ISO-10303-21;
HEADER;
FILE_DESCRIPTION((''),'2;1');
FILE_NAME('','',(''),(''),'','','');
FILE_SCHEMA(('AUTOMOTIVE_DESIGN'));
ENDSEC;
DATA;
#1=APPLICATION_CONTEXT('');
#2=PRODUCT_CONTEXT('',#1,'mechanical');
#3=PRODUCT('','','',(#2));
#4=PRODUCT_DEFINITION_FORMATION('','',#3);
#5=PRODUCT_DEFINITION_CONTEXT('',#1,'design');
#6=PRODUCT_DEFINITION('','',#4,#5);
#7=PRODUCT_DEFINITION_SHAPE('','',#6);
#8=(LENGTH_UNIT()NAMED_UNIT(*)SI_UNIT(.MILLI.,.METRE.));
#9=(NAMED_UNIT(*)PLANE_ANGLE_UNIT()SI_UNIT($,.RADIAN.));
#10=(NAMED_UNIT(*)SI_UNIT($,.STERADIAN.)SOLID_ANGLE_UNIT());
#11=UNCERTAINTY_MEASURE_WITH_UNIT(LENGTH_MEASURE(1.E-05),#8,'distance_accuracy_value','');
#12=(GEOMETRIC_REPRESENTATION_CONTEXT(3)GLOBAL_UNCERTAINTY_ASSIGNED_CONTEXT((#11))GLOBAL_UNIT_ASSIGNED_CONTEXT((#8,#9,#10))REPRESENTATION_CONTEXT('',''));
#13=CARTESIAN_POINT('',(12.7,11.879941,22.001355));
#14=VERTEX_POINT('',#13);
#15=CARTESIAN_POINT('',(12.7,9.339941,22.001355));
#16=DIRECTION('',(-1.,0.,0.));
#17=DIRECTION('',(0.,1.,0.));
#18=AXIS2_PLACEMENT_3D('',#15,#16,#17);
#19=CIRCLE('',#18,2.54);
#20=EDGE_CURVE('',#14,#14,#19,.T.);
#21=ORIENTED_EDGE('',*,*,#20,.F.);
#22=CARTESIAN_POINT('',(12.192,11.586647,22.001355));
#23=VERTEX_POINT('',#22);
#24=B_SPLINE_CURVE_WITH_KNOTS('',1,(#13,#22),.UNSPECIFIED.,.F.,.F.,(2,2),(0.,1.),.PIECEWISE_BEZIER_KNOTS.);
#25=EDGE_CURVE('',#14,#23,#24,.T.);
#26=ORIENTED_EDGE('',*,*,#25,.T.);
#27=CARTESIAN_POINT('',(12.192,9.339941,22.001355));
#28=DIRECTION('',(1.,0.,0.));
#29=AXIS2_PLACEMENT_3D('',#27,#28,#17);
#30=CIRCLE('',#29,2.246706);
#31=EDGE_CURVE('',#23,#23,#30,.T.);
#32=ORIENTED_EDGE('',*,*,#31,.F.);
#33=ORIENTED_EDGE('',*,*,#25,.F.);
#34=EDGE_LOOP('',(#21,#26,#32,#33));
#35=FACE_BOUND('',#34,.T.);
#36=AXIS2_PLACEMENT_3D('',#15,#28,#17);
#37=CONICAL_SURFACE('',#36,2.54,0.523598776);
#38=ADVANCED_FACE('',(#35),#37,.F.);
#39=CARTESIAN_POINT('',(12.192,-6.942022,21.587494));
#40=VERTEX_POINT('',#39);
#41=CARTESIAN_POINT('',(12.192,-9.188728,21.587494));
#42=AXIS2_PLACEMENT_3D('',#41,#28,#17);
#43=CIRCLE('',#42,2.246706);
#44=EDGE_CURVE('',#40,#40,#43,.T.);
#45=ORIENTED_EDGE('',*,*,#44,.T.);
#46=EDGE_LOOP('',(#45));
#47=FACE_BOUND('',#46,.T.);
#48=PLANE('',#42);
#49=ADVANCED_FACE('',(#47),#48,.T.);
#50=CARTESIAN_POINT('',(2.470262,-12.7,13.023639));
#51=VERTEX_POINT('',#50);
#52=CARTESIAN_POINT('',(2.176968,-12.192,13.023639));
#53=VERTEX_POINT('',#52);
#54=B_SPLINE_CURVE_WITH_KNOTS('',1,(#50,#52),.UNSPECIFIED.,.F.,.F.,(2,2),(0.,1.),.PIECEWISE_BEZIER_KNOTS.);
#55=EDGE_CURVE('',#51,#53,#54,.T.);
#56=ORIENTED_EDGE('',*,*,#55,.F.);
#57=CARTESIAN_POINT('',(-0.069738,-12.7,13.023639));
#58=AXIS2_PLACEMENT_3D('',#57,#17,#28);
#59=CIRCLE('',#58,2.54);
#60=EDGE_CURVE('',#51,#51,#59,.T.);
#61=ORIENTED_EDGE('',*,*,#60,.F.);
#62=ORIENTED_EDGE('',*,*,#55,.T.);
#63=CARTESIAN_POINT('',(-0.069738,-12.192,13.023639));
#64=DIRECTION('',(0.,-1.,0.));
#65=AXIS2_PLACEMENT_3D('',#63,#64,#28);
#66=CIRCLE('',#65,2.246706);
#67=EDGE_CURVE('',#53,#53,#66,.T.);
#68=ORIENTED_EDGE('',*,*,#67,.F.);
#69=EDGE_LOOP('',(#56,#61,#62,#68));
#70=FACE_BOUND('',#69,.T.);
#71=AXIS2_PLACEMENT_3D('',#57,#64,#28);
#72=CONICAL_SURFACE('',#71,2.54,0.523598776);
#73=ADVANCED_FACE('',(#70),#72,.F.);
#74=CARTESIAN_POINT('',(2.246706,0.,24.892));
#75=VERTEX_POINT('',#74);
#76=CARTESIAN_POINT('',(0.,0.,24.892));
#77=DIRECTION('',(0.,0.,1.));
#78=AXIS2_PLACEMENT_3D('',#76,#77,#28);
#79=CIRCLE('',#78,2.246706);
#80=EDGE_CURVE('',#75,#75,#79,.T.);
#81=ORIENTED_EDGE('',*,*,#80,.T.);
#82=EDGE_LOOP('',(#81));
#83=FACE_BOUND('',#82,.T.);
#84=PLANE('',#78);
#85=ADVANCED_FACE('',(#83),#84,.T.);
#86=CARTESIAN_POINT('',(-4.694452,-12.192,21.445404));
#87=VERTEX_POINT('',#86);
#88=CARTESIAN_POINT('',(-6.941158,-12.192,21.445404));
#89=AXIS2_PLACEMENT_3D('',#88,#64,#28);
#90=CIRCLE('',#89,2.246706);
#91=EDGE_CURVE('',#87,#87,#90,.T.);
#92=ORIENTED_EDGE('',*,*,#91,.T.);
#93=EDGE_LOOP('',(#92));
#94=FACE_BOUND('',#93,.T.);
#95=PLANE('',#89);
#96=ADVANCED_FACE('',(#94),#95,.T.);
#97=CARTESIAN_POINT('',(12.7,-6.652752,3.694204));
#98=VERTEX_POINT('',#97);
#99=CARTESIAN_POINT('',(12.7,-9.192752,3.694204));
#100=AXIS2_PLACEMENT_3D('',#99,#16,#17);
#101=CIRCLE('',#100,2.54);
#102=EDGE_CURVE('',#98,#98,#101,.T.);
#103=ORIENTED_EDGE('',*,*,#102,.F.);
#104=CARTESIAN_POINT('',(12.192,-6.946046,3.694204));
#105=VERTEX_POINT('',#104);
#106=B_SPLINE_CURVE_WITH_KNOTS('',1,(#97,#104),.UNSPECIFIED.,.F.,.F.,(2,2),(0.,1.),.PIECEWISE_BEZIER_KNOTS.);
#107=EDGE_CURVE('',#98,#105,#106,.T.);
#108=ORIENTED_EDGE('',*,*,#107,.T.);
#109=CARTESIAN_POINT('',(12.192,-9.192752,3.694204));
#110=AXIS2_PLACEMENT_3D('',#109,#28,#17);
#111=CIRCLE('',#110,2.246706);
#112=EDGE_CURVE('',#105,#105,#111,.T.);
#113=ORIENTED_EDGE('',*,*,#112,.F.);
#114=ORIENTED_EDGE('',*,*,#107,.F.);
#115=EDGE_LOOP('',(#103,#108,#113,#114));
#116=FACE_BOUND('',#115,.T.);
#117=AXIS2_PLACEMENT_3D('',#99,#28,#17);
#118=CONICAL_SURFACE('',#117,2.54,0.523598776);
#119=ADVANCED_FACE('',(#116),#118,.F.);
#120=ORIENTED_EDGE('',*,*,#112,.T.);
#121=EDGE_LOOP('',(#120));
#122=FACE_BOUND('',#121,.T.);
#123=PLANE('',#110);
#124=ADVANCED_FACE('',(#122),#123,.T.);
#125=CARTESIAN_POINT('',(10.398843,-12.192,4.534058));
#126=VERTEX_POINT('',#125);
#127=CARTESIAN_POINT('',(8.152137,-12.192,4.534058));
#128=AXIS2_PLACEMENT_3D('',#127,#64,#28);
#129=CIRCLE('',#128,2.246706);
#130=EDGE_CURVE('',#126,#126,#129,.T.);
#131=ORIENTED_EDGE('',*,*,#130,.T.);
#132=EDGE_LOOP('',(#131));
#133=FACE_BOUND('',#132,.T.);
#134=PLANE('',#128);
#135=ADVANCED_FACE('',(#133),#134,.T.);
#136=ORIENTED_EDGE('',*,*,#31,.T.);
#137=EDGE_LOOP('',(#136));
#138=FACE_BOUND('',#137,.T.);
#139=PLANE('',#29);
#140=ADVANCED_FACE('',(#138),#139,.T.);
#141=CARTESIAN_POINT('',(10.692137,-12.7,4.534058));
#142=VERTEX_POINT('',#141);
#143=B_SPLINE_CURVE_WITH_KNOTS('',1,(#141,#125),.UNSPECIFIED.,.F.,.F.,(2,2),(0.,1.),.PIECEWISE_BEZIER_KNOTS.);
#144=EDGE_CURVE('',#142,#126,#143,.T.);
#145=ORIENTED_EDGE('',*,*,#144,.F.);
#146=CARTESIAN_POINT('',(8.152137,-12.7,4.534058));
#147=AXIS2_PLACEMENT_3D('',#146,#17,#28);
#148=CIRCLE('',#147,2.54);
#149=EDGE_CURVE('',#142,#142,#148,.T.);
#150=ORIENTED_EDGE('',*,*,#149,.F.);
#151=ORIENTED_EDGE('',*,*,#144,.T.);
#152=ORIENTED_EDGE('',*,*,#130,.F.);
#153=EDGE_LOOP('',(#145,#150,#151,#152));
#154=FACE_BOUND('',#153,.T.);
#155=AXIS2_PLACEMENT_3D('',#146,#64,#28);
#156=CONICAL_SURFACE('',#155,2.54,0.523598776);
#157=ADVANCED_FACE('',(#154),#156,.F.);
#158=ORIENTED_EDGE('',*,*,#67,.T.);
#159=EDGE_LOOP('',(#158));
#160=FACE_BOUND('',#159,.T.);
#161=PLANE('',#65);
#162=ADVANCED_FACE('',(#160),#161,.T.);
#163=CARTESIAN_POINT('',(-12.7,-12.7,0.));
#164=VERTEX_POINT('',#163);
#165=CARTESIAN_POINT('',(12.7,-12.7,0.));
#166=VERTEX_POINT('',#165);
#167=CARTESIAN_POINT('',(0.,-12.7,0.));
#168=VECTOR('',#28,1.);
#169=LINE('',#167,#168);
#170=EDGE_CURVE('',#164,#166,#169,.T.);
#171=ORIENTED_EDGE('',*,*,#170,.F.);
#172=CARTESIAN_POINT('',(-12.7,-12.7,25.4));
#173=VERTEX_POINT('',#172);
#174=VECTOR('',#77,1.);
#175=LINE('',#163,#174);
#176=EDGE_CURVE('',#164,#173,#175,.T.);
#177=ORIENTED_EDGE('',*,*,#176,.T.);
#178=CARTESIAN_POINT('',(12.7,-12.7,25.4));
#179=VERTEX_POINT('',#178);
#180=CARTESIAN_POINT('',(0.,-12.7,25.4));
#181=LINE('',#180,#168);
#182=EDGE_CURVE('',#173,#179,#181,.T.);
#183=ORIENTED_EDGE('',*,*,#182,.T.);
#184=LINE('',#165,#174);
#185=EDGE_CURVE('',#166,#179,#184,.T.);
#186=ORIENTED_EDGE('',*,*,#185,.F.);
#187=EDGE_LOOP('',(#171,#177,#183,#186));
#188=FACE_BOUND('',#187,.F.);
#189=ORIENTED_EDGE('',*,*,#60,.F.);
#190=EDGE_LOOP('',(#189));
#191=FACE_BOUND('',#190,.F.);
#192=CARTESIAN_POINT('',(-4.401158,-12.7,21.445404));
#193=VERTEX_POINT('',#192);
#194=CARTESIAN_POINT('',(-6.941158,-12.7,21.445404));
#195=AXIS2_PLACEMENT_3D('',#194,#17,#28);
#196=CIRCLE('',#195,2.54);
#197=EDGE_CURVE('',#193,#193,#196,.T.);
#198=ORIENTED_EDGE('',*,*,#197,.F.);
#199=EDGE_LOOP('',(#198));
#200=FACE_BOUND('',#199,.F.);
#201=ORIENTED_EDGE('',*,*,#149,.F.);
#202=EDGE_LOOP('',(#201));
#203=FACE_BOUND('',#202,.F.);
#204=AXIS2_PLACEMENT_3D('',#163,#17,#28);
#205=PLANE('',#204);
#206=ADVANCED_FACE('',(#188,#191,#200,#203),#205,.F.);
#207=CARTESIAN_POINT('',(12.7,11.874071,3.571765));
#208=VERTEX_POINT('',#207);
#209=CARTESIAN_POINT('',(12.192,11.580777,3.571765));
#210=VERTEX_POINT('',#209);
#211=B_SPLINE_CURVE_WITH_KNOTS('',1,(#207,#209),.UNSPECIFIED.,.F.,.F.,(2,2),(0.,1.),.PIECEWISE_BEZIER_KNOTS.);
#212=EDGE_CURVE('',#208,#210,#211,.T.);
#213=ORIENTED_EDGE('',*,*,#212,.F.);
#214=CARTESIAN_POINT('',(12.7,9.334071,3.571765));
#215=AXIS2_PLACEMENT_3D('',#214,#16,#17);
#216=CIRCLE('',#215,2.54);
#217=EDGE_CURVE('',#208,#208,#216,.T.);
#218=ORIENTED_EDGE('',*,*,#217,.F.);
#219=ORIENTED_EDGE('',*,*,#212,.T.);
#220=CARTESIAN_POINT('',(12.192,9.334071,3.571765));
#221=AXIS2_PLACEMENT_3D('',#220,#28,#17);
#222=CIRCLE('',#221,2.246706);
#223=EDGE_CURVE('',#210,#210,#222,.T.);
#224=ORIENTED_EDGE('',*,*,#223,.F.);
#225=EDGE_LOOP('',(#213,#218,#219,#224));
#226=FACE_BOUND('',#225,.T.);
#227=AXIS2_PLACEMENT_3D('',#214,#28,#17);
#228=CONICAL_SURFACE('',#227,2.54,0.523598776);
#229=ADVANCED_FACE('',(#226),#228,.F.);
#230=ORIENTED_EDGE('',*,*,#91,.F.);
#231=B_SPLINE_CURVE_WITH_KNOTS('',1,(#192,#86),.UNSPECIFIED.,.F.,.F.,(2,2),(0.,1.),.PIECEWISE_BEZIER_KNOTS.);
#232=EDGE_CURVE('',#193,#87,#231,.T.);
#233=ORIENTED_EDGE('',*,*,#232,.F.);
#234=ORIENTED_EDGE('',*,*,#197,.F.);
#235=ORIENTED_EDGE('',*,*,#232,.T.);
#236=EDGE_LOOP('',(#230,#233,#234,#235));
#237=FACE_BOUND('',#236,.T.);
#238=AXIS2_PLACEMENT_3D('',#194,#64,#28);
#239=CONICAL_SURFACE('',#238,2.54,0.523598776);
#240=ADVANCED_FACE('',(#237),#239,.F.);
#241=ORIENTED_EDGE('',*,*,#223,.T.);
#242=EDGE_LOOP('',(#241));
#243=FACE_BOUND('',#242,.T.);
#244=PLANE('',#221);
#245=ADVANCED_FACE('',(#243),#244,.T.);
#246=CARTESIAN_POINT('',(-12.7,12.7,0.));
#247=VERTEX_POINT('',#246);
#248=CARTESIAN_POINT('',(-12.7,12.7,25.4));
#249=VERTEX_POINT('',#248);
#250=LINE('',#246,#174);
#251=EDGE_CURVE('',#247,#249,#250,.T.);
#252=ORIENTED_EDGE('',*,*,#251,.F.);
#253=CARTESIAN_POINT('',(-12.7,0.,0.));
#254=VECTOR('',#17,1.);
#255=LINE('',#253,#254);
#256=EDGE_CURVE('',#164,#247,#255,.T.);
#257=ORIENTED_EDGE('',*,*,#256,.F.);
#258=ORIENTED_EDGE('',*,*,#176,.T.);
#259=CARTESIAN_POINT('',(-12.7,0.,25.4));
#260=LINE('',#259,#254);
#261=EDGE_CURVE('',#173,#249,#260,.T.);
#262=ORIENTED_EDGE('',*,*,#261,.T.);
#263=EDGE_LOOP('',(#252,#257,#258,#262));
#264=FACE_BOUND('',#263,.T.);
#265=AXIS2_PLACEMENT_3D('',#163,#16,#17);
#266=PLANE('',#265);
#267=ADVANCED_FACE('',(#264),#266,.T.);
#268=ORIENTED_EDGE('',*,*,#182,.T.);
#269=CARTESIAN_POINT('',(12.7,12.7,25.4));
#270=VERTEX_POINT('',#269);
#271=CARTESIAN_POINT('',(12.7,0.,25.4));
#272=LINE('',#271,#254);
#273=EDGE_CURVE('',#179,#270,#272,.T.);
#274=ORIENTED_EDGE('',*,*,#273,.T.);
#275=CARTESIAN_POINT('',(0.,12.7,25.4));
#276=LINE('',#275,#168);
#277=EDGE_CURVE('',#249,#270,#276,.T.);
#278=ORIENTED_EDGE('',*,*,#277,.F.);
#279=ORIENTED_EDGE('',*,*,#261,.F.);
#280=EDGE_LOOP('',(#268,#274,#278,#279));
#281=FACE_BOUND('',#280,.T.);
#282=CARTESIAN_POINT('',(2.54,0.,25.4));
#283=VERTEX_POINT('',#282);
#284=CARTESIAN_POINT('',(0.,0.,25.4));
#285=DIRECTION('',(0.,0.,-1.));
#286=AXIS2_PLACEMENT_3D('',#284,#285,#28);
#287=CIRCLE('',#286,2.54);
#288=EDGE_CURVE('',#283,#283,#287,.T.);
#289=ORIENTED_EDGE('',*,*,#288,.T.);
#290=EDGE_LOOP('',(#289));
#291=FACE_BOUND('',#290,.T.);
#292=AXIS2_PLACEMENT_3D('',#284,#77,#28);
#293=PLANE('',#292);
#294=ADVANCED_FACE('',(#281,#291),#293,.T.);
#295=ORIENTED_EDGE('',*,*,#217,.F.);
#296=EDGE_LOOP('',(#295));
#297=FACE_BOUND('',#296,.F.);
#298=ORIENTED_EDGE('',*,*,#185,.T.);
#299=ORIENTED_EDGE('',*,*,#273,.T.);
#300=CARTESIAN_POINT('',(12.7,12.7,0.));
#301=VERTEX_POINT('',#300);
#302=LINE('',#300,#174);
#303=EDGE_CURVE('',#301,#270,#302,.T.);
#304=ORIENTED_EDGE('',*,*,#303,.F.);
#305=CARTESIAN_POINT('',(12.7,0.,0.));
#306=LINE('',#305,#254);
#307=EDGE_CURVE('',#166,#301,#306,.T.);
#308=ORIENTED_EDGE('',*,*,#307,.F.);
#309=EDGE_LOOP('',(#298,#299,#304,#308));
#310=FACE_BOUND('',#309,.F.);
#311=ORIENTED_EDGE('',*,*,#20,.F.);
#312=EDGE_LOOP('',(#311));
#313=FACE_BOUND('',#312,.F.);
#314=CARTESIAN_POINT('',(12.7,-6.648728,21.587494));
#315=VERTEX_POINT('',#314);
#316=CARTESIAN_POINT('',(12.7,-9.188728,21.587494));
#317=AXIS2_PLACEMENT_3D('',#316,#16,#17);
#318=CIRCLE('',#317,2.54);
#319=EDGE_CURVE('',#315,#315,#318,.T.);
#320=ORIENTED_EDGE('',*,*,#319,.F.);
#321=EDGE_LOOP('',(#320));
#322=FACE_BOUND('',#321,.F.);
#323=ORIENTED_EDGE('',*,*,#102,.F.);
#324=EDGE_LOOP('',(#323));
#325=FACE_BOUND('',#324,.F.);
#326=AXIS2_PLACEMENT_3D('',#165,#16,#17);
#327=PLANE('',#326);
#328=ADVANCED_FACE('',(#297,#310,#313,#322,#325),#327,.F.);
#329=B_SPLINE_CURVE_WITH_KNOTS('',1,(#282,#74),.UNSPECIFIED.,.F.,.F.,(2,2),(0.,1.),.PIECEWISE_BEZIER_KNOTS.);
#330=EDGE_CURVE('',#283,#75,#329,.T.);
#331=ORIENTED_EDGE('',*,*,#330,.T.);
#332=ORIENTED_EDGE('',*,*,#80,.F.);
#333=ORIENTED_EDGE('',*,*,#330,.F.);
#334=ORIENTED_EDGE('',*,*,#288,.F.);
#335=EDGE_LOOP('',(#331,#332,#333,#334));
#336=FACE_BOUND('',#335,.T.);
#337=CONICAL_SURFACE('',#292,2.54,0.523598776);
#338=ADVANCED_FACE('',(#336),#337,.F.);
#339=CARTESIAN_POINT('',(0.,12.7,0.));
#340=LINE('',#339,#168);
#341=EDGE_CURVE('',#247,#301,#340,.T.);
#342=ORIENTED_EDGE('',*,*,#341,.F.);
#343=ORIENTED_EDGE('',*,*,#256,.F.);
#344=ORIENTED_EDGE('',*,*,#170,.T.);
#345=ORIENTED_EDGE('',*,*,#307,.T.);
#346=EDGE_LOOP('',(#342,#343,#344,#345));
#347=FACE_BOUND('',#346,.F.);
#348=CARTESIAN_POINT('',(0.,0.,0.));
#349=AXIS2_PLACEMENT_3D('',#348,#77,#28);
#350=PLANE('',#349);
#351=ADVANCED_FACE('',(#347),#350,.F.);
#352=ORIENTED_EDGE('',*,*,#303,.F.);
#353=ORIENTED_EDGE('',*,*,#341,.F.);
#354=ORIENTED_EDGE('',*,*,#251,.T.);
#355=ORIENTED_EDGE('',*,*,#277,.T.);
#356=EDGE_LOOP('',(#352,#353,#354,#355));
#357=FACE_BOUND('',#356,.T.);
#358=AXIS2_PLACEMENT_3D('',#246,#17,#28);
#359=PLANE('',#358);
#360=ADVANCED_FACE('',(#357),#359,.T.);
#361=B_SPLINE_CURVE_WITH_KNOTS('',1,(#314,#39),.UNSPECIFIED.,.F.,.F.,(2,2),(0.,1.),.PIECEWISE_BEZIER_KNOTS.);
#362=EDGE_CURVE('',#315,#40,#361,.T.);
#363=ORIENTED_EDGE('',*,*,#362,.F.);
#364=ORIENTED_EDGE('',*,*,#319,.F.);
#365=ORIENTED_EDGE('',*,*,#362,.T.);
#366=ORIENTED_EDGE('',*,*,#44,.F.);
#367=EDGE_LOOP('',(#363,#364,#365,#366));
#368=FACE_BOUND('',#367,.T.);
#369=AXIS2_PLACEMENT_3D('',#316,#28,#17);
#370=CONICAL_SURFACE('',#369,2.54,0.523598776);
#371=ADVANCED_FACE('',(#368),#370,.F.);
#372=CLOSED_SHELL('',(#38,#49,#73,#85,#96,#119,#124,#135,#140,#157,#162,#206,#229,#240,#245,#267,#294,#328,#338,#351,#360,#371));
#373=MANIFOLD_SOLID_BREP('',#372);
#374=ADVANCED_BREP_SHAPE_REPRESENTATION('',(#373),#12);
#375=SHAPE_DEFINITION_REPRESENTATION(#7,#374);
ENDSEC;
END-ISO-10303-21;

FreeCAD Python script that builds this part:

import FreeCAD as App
import Part
import Sketcher
from FreeCAD import Vector
Q = App.Units.Quantity

doc = App.newDocument("Part")
body = doc.addObject("PartDesign::Body", "Body")

# Sketch on XY plane
sketch1 = body.newObject("Sketcher::SketchObject", "Sketch")
sketch1.AttachmentSupport = (doc.getObject("XY_Plane"), [""])
sketch1.MapMode = "FlatFace"
sketch1.addGeometry([
    Part.LineSegment(Vector(-12.7, 12.7, 0), Vector(-12.7, -12.7, 0)),
    Part.LineSegment(Vector(-12.7, -12.7, 0), Vector(12.7, -12.7, 0)),
    Part.LineSegment(Vector(12.7, -12.7, 0), Vector(12.7, 12.7, 0)),
    Part.LineSegment(Vector(12.7, 12.7, 0), Vector(-12.7, 12.7, 0)),
], False)
sketch1.addConstraint([
    Sketcher.Constraint("Coincident", 0, 2, 1, 1),
    Sketcher.Constraint("Coincident", 1, 2, 2, 1),
    Sketcher.Constraint("Coincident", 2, 2, 3, 1),
    Sketcher.Constraint("Coincident", 3, 2, 0, 1),
    Sketcher.Constraint("Vertical", 0),
    Sketcher.Constraint("Horizontal", 1),
    Sketcher.Constraint("Vertical", 2),
    Sketcher.Constraint("Horizontal", 3),
    Sketcher.Constraint("Symmetric", 0, 2, 2, 2, -1, 1),
    Sketcher.Constraint("Equal", 3, 0),
    Sketcher.Constraint("DistanceX", 1, 1, 1, 2, Q("1 in")),
])
pad1 = body.newObject("PartDesign::Pad", "Pad")
pad1.Profile = sketch1
pad1.Length = Q("1 in")

# Sketch on XY plane
sketch2 = body.newObject("Sketcher::SketchObject", "Sketch001")
sketch2.AttachmentSupport = (doc.getObject("XY_Plane"), [""])
sketch2.MapMode = "FlatFace"
sketch2.AttachmentOffset = App.Placement(Vector(0, 0, 1 * 25.4), App.Rotation())
sketch2.addGeometry(Part.Circle(Vector(0, 0, 0), Vector(0, 0, 1), 2.54), False)
sketch2.addConstraint([
    Sketcher.Constraint("Coincident", 0, 3, -1, 1),
    Sketcher.Constraint("Diameter", 0, Q("0.2 in")),
])
pocket1 = body.newObject("PartDesign::Pocket", "Pocket")
pocket1.Profile = sketch2
pocket1.Length = Q("0.02 in")
pocket1.TaperAngle = -30

# Sketch on XZ plane
sketch3 = body.newObject("Sketcher::SketchObject", "Sketch002")
sketch3.AttachmentSupport = (doc.getObject("XZ_Plane"), [""])
sketch3.MapMode = "FlatFace"
sketch3.AttachmentOffset = App.Placement(Vector(0, 0, 0.5 * 25.4), App.Rotation())
sketch3.addGeometry([
    Part.Circle(Vector(-6.941158, 21.445404, 0), Vector(0, 0, 1), 2.54),
    Part.Circle(Vector(-0.069738, 13.023639, 0), Vector(0, 0, 1), 2.54),
    Part.Circle(Vector(8.152137, 4.534058, 0), Vector(0, 0, 1), 2.54),
], False)
sketch3.addConstraint([
    Sketcher.Constraint("Equal", 0, 1),
    Sketcher.Constraint("Equal", 1, 2),
    Sketcher.Constraint("Diameter", 0, Q("0.2 in")),
    Sketcher.Constraint("DistanceX", 0, 3, -1, 1, Q("6.941158 mm")),
    Sketcher.Constraint("DistanceY", -1, 1, 1, 3, Q("13.023639 mm")),
    Sketcher.Constraint("DistanceY", -1, 1, 2, 3, Q("4.534058 mm")),
    Sketcher.Constraint("DistanceX", 0, 3, 1, 3, Q("6.87142 mm")),
    Sketcher.Constraint("DistanceY", -1, 1, 0, 3, Q("21.445404 mm")),
    Sketcher.Constraint("DistanceX", -1, 1, 2, 3, Q("8.152137 mm")),
])
pocket2 = body.newObject("PartDesign::Pocket", "Pocket001")
pocket2.Profile = sketch3
pocket2.Length = Q("0.02 in")
pocket2.TaperAngle = -30

# Sketch on YZ plane
sketch4 = body.newObject("Sketcher::SketchObject", "Sketch003")
sketch4.AttachmentSupport = (doc.getObject("YZ_Plane"), [""])
sketch4.MapMode = "FlatFace"
sketch4.AttachmentOffset = App.Placement(Vector(0, 0, 0.5 * 25.4), App.Rotation())
sketch4.addGeometry([
    Part.Circle(Vector(-9.188728, 21.587494, 0), Vector(0, 0, 1), 2.54),
    Part.Circle(Vector(9.339941, 22.001355, 0), Vector(0, 0, 1), 2.54),
    Part.Circle(Vector(9.334071, 3.571765, 0), Vector(0, 0, 1), 2.54),
    Part.Circle(Vector(-9.192752, 3.694204, 0), Vector(0, 0, 1), 2.54),
], False)
sketch4.addConstraint([
    Sketcher.Constraint("Equal", 0, 1),
    Sketcher.Constraint("Equal", 1, 2),
    Sketcher.Constraint("Equal", 2, 3),
    Sketcher.Constraint("Diameter", 0, Q("0.2 in")),
    Sketcher.Constraint("DistanceX", 0, 3, 2, 3, Q("18.522799 mm")),
    Sketcher.Constraint("DistanceX", 0, 3, -1, 1, Q("9.188728 mm")),
    Sketcher.Constraint("DistanceX", -1, 1, 1, 3, Q("9.339941 mm")),
    Sketcher.Constraint("DistanceX", 3, 3, -1, 1, Q("9.192752 mm")),
    Sketcher.Constraint("DistanceY", 0, 3, 1, 3, Q("0.413861 mm")),
    Sketcher.Constraint("DistanceY", 2, 3, 1, 3, Q("18.42959 mm")),
    Sketcher.Constraint("DistanceY", 3, 3, 0, 3, Q("17.893289 mm")),
    Sketcher.Constraint("DistanceY", -1, 1, 0, 3, Q("21.587494 mm")),
])
pocket3 = body.newObject("PartDesign::Pocket", "Pocket002")
pocket3.Profile = sketch4
pocket3.Length = Q("0.02 in")
pocket3.TaperAngle = -30

doc.recompute()
